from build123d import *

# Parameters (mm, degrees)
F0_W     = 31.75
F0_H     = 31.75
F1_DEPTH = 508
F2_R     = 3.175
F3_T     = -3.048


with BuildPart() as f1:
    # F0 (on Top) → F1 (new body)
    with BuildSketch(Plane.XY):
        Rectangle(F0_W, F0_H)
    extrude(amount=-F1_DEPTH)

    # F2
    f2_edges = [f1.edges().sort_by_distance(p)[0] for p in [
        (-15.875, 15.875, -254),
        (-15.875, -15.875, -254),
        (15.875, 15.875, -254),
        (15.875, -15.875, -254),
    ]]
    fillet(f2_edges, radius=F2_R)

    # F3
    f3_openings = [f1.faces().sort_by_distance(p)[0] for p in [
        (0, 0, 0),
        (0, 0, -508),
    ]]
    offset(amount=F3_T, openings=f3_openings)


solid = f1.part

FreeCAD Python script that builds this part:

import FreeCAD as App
import Part
import Sketcher
Q = App.Units.Quantity


def edges_at(feature, points):
    """Names of the edges that pass closest to the given points."""
    edges = feature.Shape.Edges
    near = lambda p: min(range(len(edges)), key=lambda i: edges[i].distToShape(Part.Vertex(*p))[0])
    return sorted({f"Edge{near(p) + 1}" for p in points})


def faces_at(feature, points):
    """Names of the faces that lie closest to the given points."""
    faces = feature.Shape.Faces
    near = lambda p: min(range(len(faces)), key=lambda i: faces[i].distToShape(Part.Vertex(*p))[0])
    return sorted({f"Face{near(p) + 1}" for p in points})

doc = App.newDocument("Part")
body = doc.addObject("PartDesign::Body", "Body")

sketch1 = doc.addObject("Sketcher::SketchObject", "Sketch")
body.addObject(sketch1)
sketch1.AttachmentSupport = (doc.XY_Plane, [""])
sketch1.MapMode = "FlatFace"
sketch1.addGeometry([
    Part.LineSegment(App.Vector(-16, 16, 0), App.Vector(-16, -16, 0)),
    Part.LineSegment(App.Vector(-16, -16, 0), App.Vector(16, -16, 0)),
    Part.LineSegment(App.Vector(16, -16, 0), App.Vector(16, 16, 0)),
    Part.LineSegment(App.Vector(16, 16, 0), App.Vector(-16, 16, 0)),
], False)
sketch1.addConstraint([
    Sketcher.Constraint("Coincident", 0, 2, 1, 1),
    Sketcher.Constraint("Coincident", 1, 2, 2, 1),
    Sketcher.Constraint("Coincident", 2, 2, 3, 1),
    Sketcher.Constraint("Coincident", 3, 2, 0, 1),
    Sketcher.Constraint("Vertical", 0),
    Sketcher.Constraint("Horizontal", 1),
    Sketcher.Constraint("Vertical", 2),
    Sketcher.Constraint("Horizontal", 3),
    Sketcher.Constraint("Symmetric", 0, 2, 2, 2, -1, 1),
    Sketcher.Constraint("Equal", 3, 0),
    Sketcher.Constraint("DistanceX", 1, 1, 1, 2, Q("1.25 in")),
])
pad1 = doc.addObject("PartDesign::Pad", "Pad")
body.addObject(pad1)
pad1.Profile = sketch1
pad1.Length = Q("20 in")
pad1.Reversed = True
doc.recompute()

fillet = doc.addObject("PartDesign::Fillet", "Fillet")
body.addObject(fillet)
fillet.Base = (pad1, edges_at(pad1, [
    (-15.875, 15.875, -254),
    (-15.875, -15.875, -254),
    (15.875, 15.875, -254),
    (15.875, -15.875, -254),
]))
fillet.Radius = Q("0.125 in")
doc.recompute()

thickness = doc.addObject("PartDesign::Thickness", "Thickness")
body.addObject(thickness)
thickness.Base = (fillet, faces_at(fillet, [(0, 0, 0), (0, 0, -508)]))
thickness.Value = Q("0.12 in")
thickness.Reversed = True
thickness.Join = "Arc"

doc.recompute()
